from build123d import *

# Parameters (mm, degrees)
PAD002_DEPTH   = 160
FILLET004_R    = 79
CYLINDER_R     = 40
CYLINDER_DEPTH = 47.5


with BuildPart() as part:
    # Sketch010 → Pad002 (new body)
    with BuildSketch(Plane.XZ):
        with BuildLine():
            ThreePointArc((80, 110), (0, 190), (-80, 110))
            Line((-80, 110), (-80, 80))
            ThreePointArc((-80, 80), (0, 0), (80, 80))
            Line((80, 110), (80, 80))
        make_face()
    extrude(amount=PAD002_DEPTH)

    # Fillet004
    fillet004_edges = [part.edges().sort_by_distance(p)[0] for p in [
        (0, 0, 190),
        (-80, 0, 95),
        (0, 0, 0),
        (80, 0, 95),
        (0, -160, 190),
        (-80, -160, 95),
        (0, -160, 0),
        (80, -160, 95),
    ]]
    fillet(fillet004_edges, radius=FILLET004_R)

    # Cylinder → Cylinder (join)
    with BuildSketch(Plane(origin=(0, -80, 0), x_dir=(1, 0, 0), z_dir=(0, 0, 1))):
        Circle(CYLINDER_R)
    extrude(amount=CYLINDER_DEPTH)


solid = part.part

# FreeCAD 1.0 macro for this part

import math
import FreeCAD as App
import Part
import Sketcher

V = App.Vector
Q = App.Units.Quantity


def edges_at(feature, points):
    """Names of the edges that pass closest to the given points."""
    edges = feature.Shape.Edges
    near = lambda p: min(range(len(edges)), key=lambda i: edges[i].distToShape(Part.Vertex(*p))[0])
    return sorted({f"Edge{near(p) + 1}" for p in points})

doc = App.newDocument("Part")
params = doc.addObject("Spreadsheet::Sheet", "Params")
for row, (alias, value) in enumerate([
    ("sketch1_radius", "80 mm"),
    ("sketch1_height", "30 mm"),
    ("pad1_length", "160 mm"),
    ("fillet_radius", "79 mm"),
    ("sketch2_diameter", "80 mm"),
    ("pad2_length", "47.5 mm"),
], start=1):
    params.set(f"A{row}", alias)
    params.set(f"B{row}", "=" + value)
    params.setAlias(f"B{row}", alias)

body = doc.addObject("PartDesign::Body", "Body")

sketch1 = doc.addObject("Sketcher::SketchObject", "Sketch")
body.addObject(sketch1)
sketch1.AttachmentSupport = (doc.XZ_Plane, [""])
sketch1.MapMode = "FlatFace"
sketch1.addGeometry(Part.ArcOfCircle(Part.Circle(V(0, 110, 0), V(0, 0, 1), 80), math.radians(0), math.radians(180)), False)
sketch1.addGeometry(Part.LineSegment(V(-80, 110, 0), V(-80, 80, 0)), False)
sketch1.addGeometry(Part.ArcOfCircle(Part.Circle(V(0, 80, 0), V(0, 0, 1), 80), math.radians(180), math.radians(360)), False)
sketch1.addGeometry(Part.LineSegment(V(80, 80, 0), V(80, 110, 0)), False)
sketch1.addConstraint(Sketcher.Constraint("Tangent", 0, 2, 1, 1))
sketch1.addConstraint(Sketcher.Constraint("Tangent", 1, 2, 2, 1))
sketch1.addConstraint(Sketcher.Constraint("Tangent", 2, 2, 3, 1))
sketch1.addConstraint(Sketcher.Constraint("Tangent", 3, 2, 0, 1))
sketch1.addConstraint(Sketcher.Constraint("Vertical", 1))
sketch1.addConstraint(Sketcher.Constraint("Vertical", 3))
sketch1.addConstraint(Sketcher.Constraint("PointOnObject", 0, 3, -2))
sketch1.addConstraint(Sketcher.Constraint("Radius", 0, Q("80 mm")))
sketch1.addConstraint(Sketcher.Constraint("DistanceY", 1, 2, 1, 1, Q("30 mm")))
sketch1.addConstraint(Sketcher.Constraint("DistanceY", -1, 1, 0, 3, Q("110 mm")))
sketch1.setExpression("Constraints[7]", "Params.sketch1_radius")
sketch1.setExpression("Constraints[8]", "Params.sketch1_height")
pad1 = doc.addObject("PartDesign::Pad", "Pad")
body.addObject(pad1)
pad1.Profile = sketch1
pad1.setExpression("Length", "Params.pad1_length")
doc.recompute()

fillet = doc.addObject("PartDesign::Fillet", "Fillet")
body.addObject(fillet)
fillet.Base = (pad1, edges_at(pad1, [
    (0, 0, 190),
    (-80, 0, 95),
    (0, 0, 0),
    (80, 0, 95),
    (0, -160, 190),
    (-80, -160, 95),
    (0, -160, 0),
    (80, -160, 95),
]))
fillet.setExpression("Radius", "Params.fillet_radius")

sketch2 = doc.addObject("Sketcher::SketchObject", "Sketch001")
body.addObject(sketch2)
sketch2.AttachmentSupport = (doc.XY_Plane, [""])
sketch2.MapMode = "FlatFace"
sketch2.addGeometry(Part.Circle(V(0, -80, 0), V(0, 0, 1), 40), False)
sketch2.addConstraint(Sketcher.Constraint("PointOnObject", 0, 3, -2))
sketch2.addConstraint(Sketcher.Constraint("Diameter", 0, Q("80 mm")))
sketch2.addConstraint(Sketcher.Constraint("DistanceY", 0, 3, -1, 1, Q("80 mm")))
sketch2.setExpression("Constraints[1]", "Params.sketch2_diameter")
pad2 = doc.addObject("PartDesign::Pad", "Pad001")
body.addObject(pad2)
pad2.Profile = sketch2
pad2.setExpression("Length", "Params.pad2_length")

doc.recompute()
